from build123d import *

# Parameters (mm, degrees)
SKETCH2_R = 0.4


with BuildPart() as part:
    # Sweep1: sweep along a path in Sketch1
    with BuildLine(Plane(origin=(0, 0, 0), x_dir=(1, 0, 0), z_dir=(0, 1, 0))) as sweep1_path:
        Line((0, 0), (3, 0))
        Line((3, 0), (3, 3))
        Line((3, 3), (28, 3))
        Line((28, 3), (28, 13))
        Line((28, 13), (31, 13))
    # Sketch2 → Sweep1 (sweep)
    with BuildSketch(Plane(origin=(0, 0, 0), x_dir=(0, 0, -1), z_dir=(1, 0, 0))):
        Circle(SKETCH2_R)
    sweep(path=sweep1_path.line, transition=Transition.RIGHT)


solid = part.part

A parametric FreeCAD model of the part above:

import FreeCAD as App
import Part
import Sketcher
Q = App.Units.Quantity

doc = App.newDocument("Part")
body = doc.addObject("PartDesign::Body", "Body")

sketch1 = body.newObject("Sketcher::SketchObject", "Sketch")
sketch1.AttachmentSupport = (doc.getObject("YZ_Plane"), [""])
sketch1.MapMode = "FlatFace"
sketch1.addGeometry(Part.Circle(App.Vector(0, 0, 0), App.Vector(0, 0, 1), 0.4), False)
sketch1.addConstraint(Sketcher.Constraint("Coincident", 0, 3, -1, 1))
sketch1.addConstraint(Sketcher.Constraint("Diameter", 0, Q("0.8 mm")))

sketch2 = body.newObject("Sketcher::SketchObject", "Sketch001")
sketch2.AttachmentSupport = (doc.getObject("XZ_Plane"), [""])
sketch2.MapMode = "FlatFace"
sketch2.addGeometry(Part.LineSegment(App.Vector(0, 0, 0), App.Vector(3, 0, 0)), False)
sketch2.addGeometry(Part.LineSegment(App.Vector(3, 0, 0), App.Vector(3, -3, 0)), False)
sketch2.addGeometry(Part.LineSegment(App.Vector(3, -3, 0), App.Vector(28, -3, 0)), False)
sketch2.addGeometry(Part.LineSegment(App.Vector(28, -3, 0), App.Vector(28, -13, 0)), False)
sketch2.addGeometry(Part.LineSegment(App.Vector(28, -13, 0), App.Vector(31, -13, 0)), False)
sketch2.addConstraint(Sketcher.Constraint("Coincident", 0, 2, 1, 1))
sketch2.addConstraint(Sketcher.Constraint("Coincident", 1, 2, 2, 1))
sketch2.addConstraint(Sketcher.Constraint("Coincident", 2, 2, 3, 1))
sketch2.addConstraint(Sketcher.Constraint("Coincident", 3, 2, 4, 1))
sketch2.addConstraint(Sketcher.Constraint("Horizontal", 0))
sketch2.addConstraint(Sketcher.Constraint("Vertical", 1))
sketch2.addConstraint(Sketcher.Constraint("Horizontal", 2))
sketch2.addConstraint(Sketcher.Constraint("Vertical", 3))
sketch2.addConstraint(Sketcher.Constraint("Horizontal", 4))
sketch2.addConstraint(Sketcher.Constraint("Coincident", 0, 1, -1, 1))
sketch2.addConstraint(Sketcher.Constraint("Equal", 0, 4))
sketch2.addConstraint(Sketcher.Constraint("Equal", 4, 1))
sketch2.addConstraint(Sketcher.Constraint("DistanceX", 0, 1, 0, 2, Q("3 mm")))
sketch2.addConstraint(Sketcher.Constraint("DistanceX", 2, 1, 2, 2, Q("25 mm")))
sketch2.addConstraint(Sketcher.Constraint("DistanceY", 3, 2, 3, 1, Q("10 mm")))
doc.recompute()

additivepipe = body.newObject("PartDesign::AdditivePipe", "AdditivePipe")
additivepipe.Profile = sketch1
additivepipe.Spine = (sketch2, ["Edge1", "Edge2", "Edge3", "Edge4", "Edge5"])
additivepipe.Transition = "Right corner"

doc.recompute()
